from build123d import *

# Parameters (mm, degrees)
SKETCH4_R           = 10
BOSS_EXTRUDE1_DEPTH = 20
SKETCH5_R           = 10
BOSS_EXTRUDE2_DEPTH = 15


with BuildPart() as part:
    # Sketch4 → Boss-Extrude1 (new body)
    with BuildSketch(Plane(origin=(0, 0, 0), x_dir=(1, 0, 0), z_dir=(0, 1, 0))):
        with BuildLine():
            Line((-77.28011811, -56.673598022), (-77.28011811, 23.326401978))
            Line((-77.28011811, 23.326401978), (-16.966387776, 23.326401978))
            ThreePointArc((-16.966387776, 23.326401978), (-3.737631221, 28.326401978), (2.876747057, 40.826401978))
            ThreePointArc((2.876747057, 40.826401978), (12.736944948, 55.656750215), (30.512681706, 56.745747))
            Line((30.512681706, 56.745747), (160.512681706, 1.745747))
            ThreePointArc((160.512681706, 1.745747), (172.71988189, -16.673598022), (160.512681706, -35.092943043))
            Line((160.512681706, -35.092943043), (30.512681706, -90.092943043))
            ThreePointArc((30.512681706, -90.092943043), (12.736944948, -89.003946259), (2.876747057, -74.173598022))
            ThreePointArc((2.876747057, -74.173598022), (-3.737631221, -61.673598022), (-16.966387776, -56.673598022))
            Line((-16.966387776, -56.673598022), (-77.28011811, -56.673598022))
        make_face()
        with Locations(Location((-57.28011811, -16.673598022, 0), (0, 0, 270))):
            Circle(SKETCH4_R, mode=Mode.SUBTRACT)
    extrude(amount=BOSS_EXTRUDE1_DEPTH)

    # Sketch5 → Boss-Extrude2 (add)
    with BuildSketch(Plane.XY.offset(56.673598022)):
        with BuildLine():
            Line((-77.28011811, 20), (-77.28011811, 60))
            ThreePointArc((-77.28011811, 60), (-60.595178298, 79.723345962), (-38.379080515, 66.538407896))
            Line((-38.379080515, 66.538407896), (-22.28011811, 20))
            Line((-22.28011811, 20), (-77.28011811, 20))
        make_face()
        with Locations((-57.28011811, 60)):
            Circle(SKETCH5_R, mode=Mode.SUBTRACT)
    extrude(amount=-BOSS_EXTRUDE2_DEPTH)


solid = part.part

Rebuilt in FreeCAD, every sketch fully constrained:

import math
import FreeCAD as App
import Part
import Sketcher

V = App.Vector
Q = App.Units.Quantity

doc = App.newDocument("Part")
body = doc.addObject("PartDesign::Body", "Body")

# Sketch on XZ plane
sketch1 = doc.addObject("Sketcher::SketchObject", "Sketch")
body.addObject(sketch1)
sketch1.AttachmentSupport = (doc.XZ_Plane, [""])
sketch1.MapMode = "FlatFace"
sketch1.addGeometry(Part.LineSegment(V(-77.280118, -23.326402, 0), V(-77.280118, 56.673598, 0)), False)
sketch1.addGeometry(Part.LineSegment(V(-77.280118, 56.673598, 0), V(-16.966388, 56.673598, 0)), False)
sketch1.addGeometry(Part.ArcOfCircle(Part.Circle(V(-16.966388, 76.673598, 0), V(0, 0, 1), 20), math.radians(-90), math.radians(-7.180756)), False)
sketch1.addGeometry(Part.ArcOfCircle(Part.Circle(V(22.719882, 71.673598, 0), V(0, 0, 1), 20), math.radians(67.0679), math.radians(172.819244)), False)
sketch1.addGeometry(Part.LineSegment(V(30.512682, 90.092943, 0), V(160.512682, 35.092943, 0)), False)
sketch1.addGeometry(Part.ArcOfCircle(Part.Circle(V(152.719882, 16.673598, 0), V(0, 0, 1), 20), math.radians(-67.0679), math.radians(67.0679)), False)
sketch1.addGeometry(Part.LineSegment(V(160.512682, -1.745747, 0), V(30.512682, -56.745747, 0)), False)
sketch1.addGeometry(Part.ArcOfCircle(Part.Circle(V(22.719882, -38.326402, 0), V(0, 0, 1), 20), math.radians(-172.819244), math.radians(-67.0679)), False)
sketch1.addGeometry(Part.ArcOfCircle(Part.Circle(V(-16.966388, -43.326402, 0), V(0, 0, 1), 20), math.radians(7.180756), math.radians(90)), False)
sketch1.addGeometry(Part.LineSegment(V(-16.966388, -23.326402, 0), V(-77.280118, -23.326402, 0)), False)
sketch1.addGeometry(Part.Circle(V(-57.280118, 16.673598, 0), V(0, 0, 1), 10), False)
sketch1.addConstraint(Sketcher.Constraint("Coincident", 0, 2, 1, 1))
sketch1.addConstraint(Sketcher.Constraint("Tangent", 1, 2, 2, 1))
sketch1.addConstraint(Sketcher.Constraint("Tangent", 2, 2, 3, 2))
sketch1.addConstraint(Sketcher.Constraint("Tangent", 3, 1, 4, 1))
sketch1.addConstraint(Sketcher.Constraint("Tangent", 4, 2, 5, 2))
sketch1.addConstraint(Sketcher.Constraint("Tangent", 5, 1, 6, 1))
sketch1.addConstraint(Sketcher.Constraint("Tangent", 6, 2, 7, 2))
sketch1.addConstraint(Sketcher.Constraint("Tangent", 7, 1, 8, 1))
sketch1.addConstraint(Sketcher.Constraint("Tangent", 8, 2, 9, 1))
sketch1.addConstraint(Sketcher.Constraint("Coincident", 9, 2, 0, 1))
sketch1.addConstraint(Sketcher.Constraint("Vertical", 0))
sketch1.addConstraint(Sketcher.Constraint("Horizontal", 1))
sketch1.addConstraint(Sketcher.Constraint("Horizontal", 9))
sketch1.addConstraint(Sketcher.Constraint("Equal", 2, 3))
sketch1.addConstraint(Sketcher.Constraint("Equal", 3, 5))
sketch1.addConstraint(Sketcher.Constraint("Equal", 5, 7))
sketch1.addConstraint(Sketcher.Constraint("Equal", 7, 8))
sketch1.addConstraint(Sketcher.Constraint("Horizontal", 5, 3, 10, 3))
sketch1.addConstraint(Sketcher.Constraint("Vertical", 3, 3, 7, 3))
sketch1.addConstraint(Sketcher.Constraint("Vertical", 2, 3, 8, 3))
sketch1.addConstraint(Sketcher.Constraint("Vertical", 4, 2, 5, 1))
sketch1.addConstraint(Sketcher.Constraint("Diameter", 10, Q("20 mm")))
sketch1.addConstraint(Sketcher.Constraint("Radius", 2, Q("20 mm")))
sketch1.addConstraint(Sketcher.Constraint("DistanceY", 0, 1, 0, 2, Q("80 mm")))
sketch1.addConstraint(Sketcher.Constraint("DistanceY", 3, 3, 2, 3, Q("5 mm")))
sketch1.addConstraint(Sketcher.Constraint("DistanceX", 3, 3, 5, 3, Q("130 mm")))
sketch1.addConstraint(Sketcher.Constraint("DistanceX", 10, 3, 3, 3, Q("80 mm")))
sketch1.addConstraint(Sketcher.Constraint("DistanceX", 0, 2, 10, 3, Q("20 mm")))
sketch1.addConstraint(Sketcher.Constraint("DistanceY", -1, 1, 2, 3, Q("76.673598 mm")))
sketch1.addConstraint(Sketcher.Constraint("DistanceX", -1, 1, 3, 3, Q("22.719882 mm")))
pad1 = doc.addObject("PartDesign::Pad", "Pad")
body.addObject(pad1)
pad1.Profile = sketch1
pad1.Length = 20
pad1.Reversed = True

# Sketch on XY plane
sketch2 = doc.addObject("Sketcher::SketchObject", "Sketch001")
body.addObject(sketch2)
sketch2.AttachmentSupport = (doc.XY_Plane, [""])
sketch2.MapMode = "FlatFace"
sketch2.AttachmentOffset = App.Placement(V(0, 0, 56.673598), App.Rotation())
sketch2.addGeometry(Part.LineSegment(V(-77.280118, 60, 0), V(-77.280118, 20, 0)), False)
sketch2.addGeometry(Part.LineSegment(V(-77.280118, 20, 0), V(-22.280118, 20, 0)), False)
sketch2.addGeometry(Part.LineSegment(V(-22.280118, 20, 0), V(-38.379081, 66.538408, 0)), False)
sketch2.addGeometry(Part.ArcOfCircle(Part.Circle(V(-57.280118, 60, 0), V(0, 0, 1), 20), math.radians(19.081962), math.radians(180)), False)
sketch2.addGeometry(Part.Circle(V(-57.280118, 60, 0), V(0, 0, 1), 10), False)
sketch2.addConstraint(Sketcher.Constraint("Coincident", 0, 2, 1, 1))
sketch2.addConstraint(Sketcher.Constraint("Coincident", 1, 2, 2, 1))
sketch2.addConstraint(Sketcher.Constraint("Tangent", 2, 2, 3, 1))
sketch2.addConstraint(Sketcher.Constraint("Tangent", 3, 2, 0, 1))
sketch2.addConstraint(Sketcher.Constraint("Vertical", 0))
sketch2.addConstraint(Sketcher.Constraint("Horizontal", 1))
sketch2.addConstraint(Sketcher.Constraint("Coincident", 4, 3, 3, 3))
sketch2.addConstraint(Sketcher.Constraint("Diameter", 4, Q("20 mm")))
sketch2.addConstraint(Sketcher.Constraint("Radius", 3, Q("20 mm")))
sketch2.addConstraint(Sketcher.Constraint("DistanceX", 1, 1, 1, 2, Q("55 mm")))
sketch2.addConstraint(Sketcher.Constraint("DistanceY", 0, 2, 0, 1, Q("40 mm")))
sketch2.addConstraint(Sketcher.Constraint("DistanceY", -1, 1, 3, 3, Q("60 mm")))
sketch2.addConstraint(Sketcher.Constraint("DistanceX", 3, 3, -1, 1, Q("57.280118 mm")))
pad2 = doc.addObject("PartDesign::Pad", "Pad001")
body.addObject(pad2)
pad2.Profile = sketch2
pad2.Length = 15
pad2.Reversed = True

doc.recompute()
